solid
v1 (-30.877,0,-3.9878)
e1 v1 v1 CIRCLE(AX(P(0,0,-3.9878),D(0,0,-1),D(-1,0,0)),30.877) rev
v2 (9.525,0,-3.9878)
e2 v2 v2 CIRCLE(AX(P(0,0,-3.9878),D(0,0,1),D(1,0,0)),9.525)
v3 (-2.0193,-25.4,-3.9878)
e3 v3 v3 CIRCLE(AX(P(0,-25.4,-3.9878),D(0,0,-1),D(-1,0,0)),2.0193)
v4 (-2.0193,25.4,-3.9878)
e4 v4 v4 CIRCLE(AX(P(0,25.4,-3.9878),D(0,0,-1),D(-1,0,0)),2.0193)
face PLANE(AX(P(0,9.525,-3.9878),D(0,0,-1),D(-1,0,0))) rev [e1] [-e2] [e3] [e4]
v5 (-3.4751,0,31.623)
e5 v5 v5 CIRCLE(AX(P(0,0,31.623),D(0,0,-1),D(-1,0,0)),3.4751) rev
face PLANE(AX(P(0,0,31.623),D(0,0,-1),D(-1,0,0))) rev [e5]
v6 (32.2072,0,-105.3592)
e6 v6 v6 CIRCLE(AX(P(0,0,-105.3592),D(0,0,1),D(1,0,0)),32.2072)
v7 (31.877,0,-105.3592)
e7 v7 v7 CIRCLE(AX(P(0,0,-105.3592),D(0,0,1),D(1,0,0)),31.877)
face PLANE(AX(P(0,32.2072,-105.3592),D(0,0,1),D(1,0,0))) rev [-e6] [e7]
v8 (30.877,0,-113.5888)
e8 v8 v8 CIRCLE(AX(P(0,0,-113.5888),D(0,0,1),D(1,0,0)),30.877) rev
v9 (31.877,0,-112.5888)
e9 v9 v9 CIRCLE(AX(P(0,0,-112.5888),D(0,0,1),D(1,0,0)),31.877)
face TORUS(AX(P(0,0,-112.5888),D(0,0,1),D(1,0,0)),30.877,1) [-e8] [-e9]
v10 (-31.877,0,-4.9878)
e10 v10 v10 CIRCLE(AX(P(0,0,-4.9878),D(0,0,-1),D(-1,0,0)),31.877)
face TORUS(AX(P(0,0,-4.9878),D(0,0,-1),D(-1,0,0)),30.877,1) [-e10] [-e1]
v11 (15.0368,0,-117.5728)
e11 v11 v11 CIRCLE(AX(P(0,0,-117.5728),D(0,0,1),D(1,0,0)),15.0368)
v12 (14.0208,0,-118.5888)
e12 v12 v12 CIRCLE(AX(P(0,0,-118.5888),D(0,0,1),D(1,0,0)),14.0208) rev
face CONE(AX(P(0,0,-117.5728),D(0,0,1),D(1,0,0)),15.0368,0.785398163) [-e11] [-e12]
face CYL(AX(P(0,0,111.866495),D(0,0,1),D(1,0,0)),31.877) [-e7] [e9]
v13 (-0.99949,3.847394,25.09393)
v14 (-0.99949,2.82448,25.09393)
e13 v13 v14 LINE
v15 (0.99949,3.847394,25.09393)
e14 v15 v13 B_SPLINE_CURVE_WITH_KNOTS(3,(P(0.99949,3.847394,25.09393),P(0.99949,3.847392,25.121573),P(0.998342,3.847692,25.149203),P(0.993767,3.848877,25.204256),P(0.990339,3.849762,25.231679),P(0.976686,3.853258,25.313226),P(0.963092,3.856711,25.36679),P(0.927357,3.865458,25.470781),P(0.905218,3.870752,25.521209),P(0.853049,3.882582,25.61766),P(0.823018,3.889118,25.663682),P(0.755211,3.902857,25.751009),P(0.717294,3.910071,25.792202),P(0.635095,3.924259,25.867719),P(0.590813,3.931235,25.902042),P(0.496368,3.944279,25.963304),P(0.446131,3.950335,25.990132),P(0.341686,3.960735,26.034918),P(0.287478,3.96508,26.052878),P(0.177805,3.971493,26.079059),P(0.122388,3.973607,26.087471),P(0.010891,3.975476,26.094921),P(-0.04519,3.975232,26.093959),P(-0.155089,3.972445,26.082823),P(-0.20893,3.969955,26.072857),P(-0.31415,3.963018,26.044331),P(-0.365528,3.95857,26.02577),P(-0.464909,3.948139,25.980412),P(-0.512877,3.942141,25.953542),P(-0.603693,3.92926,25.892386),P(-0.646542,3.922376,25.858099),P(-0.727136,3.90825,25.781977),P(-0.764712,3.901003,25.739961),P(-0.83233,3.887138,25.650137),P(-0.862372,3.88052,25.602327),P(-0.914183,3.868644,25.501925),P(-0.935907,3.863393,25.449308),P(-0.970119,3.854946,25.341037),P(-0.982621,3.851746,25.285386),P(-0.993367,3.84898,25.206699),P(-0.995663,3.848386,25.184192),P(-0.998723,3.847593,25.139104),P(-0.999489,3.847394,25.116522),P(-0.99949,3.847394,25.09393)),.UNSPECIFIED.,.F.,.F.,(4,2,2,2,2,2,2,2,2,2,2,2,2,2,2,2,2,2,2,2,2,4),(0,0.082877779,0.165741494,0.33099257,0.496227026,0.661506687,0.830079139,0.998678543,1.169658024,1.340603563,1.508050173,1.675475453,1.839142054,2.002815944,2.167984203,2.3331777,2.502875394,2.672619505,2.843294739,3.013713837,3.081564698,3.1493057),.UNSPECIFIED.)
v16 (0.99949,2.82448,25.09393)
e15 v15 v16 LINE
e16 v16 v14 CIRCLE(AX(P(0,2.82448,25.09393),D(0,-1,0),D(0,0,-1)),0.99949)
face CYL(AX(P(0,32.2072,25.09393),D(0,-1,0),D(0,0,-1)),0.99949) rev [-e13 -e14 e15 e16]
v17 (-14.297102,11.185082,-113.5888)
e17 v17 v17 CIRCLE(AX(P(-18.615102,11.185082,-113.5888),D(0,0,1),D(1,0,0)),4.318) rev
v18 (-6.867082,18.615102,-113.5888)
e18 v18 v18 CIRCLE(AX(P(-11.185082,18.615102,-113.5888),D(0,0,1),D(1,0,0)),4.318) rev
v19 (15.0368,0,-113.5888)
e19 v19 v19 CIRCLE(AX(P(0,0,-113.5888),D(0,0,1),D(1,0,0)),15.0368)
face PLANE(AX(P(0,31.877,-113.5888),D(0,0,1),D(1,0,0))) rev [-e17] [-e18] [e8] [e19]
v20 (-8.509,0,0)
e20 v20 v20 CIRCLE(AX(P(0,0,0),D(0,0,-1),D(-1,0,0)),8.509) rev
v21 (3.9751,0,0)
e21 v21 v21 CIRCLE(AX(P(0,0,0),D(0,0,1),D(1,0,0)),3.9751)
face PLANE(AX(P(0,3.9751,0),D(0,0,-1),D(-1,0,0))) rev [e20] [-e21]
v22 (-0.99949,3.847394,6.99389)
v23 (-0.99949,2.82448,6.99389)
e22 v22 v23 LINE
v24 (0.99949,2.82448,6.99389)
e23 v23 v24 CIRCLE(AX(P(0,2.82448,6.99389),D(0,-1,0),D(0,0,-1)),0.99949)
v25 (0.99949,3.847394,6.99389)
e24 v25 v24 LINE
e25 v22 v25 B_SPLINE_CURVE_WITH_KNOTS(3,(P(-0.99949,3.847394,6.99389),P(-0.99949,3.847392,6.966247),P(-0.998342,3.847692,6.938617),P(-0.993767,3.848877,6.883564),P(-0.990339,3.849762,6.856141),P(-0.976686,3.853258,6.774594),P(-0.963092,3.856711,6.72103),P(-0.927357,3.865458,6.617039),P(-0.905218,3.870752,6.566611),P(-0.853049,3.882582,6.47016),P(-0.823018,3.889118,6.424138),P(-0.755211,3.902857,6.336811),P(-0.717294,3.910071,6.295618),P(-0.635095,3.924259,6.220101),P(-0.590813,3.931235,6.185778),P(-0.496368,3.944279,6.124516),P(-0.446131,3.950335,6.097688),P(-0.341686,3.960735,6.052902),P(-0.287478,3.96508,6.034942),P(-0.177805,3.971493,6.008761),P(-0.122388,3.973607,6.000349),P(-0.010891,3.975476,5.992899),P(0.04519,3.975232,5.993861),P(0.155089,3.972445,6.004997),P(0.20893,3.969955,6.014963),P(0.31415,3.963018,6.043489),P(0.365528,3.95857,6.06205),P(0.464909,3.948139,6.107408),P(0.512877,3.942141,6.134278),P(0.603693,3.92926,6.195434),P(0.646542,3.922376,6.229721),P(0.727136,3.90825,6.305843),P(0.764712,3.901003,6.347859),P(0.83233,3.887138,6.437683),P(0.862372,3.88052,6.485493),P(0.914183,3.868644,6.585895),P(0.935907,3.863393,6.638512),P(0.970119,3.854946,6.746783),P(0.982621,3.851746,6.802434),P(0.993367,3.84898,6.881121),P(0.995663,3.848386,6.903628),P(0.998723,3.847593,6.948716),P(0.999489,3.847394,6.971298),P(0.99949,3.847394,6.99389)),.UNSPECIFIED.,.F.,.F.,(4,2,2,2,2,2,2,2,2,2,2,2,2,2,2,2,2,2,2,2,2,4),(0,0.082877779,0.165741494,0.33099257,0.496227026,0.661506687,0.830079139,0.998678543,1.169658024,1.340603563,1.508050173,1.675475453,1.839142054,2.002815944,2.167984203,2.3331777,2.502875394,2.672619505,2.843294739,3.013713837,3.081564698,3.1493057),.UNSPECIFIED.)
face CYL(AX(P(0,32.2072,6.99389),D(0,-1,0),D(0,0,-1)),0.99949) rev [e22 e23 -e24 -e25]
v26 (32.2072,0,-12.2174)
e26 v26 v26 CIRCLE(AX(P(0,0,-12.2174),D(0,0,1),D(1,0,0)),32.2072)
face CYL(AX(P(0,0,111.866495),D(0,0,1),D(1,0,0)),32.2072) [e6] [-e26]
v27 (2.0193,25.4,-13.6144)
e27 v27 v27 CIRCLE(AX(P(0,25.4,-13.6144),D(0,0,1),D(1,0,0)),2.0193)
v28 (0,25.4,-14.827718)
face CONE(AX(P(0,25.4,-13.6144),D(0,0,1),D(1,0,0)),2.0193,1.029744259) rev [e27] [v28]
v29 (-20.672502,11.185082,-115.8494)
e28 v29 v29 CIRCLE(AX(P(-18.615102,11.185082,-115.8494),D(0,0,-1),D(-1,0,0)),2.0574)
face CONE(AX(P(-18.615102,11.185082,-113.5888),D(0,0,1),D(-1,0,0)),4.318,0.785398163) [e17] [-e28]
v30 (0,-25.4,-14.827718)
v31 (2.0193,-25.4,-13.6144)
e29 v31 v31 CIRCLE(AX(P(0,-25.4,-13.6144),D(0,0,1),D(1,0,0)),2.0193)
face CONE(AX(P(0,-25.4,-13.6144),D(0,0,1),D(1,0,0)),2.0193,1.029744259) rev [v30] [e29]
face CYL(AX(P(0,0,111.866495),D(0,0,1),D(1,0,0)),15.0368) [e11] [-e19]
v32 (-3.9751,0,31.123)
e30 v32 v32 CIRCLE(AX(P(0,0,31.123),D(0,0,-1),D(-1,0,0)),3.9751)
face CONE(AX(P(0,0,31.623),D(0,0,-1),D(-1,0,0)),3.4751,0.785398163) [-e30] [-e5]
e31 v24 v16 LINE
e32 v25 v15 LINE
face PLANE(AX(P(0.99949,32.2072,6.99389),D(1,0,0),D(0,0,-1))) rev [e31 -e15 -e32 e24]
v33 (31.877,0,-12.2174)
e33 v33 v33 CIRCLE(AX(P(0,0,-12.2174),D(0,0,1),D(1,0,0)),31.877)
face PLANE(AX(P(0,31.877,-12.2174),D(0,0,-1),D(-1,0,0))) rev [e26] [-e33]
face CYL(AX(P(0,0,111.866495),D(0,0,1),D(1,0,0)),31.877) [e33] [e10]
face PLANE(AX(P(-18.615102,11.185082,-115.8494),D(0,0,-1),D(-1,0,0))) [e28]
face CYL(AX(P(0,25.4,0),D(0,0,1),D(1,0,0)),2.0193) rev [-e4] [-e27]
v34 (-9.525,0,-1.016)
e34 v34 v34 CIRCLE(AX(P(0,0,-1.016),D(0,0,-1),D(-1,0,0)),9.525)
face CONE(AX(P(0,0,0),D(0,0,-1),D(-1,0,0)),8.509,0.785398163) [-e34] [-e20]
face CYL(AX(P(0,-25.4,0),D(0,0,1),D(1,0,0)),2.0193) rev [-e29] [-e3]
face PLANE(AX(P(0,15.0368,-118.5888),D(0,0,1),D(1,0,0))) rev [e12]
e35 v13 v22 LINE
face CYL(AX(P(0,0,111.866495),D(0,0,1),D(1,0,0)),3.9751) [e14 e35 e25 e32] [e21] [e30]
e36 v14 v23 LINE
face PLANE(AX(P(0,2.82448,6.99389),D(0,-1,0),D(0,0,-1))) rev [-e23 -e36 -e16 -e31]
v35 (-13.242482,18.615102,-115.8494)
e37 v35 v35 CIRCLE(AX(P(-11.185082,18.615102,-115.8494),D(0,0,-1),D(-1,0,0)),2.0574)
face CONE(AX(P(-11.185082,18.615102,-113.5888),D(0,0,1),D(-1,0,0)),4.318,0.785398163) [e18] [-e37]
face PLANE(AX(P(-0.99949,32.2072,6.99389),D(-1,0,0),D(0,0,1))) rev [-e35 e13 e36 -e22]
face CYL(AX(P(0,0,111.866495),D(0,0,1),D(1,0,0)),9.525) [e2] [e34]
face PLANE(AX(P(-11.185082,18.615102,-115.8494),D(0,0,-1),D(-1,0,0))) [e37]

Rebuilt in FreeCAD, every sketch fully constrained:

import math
import FreeCAD as App
import Part
import Sketcher

V = App.Vector
Q = App.Units.Quantity


def edges_at(feature, points):
    """Names of the edges that pass closest to the given points."""
    edges = feature.Shape.Edges
    near = lambda p: min(range(len(edges)), key=lambda i: edges[i].distToShape(Part.Vertex(*p))[0])
    return sorted({f"Edge{near(p) + 1}" for p in points})


def faces_at(feature, points):
    """Names of the faces that lie closest to the given points."""
    faces = feature.Shape.Faces
    near = lambda p: min(range(len(faces)), key=lambda i: faces[i].distToShape(Part.Vertex(*p))[0])
    return sorted({f"Face{near(p) + 1}" for p in points})

doc = App.newDocument("Part")
body = doc.addObject("PartDesign::Body", "Body")

# Sketch on YZ plane
sketch1 = body.newObject("Sketcher::SketchObject", "Sketch")
sketch1.AttachmentSupport = (doc.getObject("YZ_Plane"), [""])
sketch1.MapMode = "FlatFace"
sketch1.addGeometry([
    Part.LineSegment(V(3.98, 31.62, 0), V(0, 31.62, 0)),  # 0
    Part.LineSegment(V(0, 31.62, 0), V(0, -118.59, 0)),  # 1
    Part.LineSegment(V(0, -118.59, 0), V(15.04, -118.59, 0)),  # 2
    Part.LineSegment(V(15.04, -118.59, 0), V(15.04, -113.59, 0)),  # 3
    Part.LineSegment(V(15.04, -113.59, 0), V(31.88, -113.59, 0)),  # 4
    Part.LineSegment(V(31.88, -113.59, 0), V(31.88, -105.36, 0)),  # 5
    Part.LineSegment(V(31.88, -105.36, 0), V(32.21, -105.36, 0)),  # 6
    Part.LineSegment(V(32.21, -105.36, 0), V(32.21, -12.22, 0)),  # 7
    Part.LineSegment(V(32.21, -12.22, 0), V(31.88, -12.22, 0)),  # 8
    Part.LineSegment(V(31.88, -12.22, 0), V(31.88, -3.99, 0)),  # 9
    Part.LineSegment(V(31.88, -3.99, 0), V(9.53, -3.99, 0)),  # 10
    Part.LineSegment(V(9.53, -3.99, 0), V(9.53, 0, 0)),  # 11
    Part.LineSegment(V(9.53, 0, 0), V(3.98, 0, 0)),  # 12
    Part.LineSegment(V(3.98, 0, 0), V(3.98, 31.62, 0)),  # 13
], False)
sketch1.addConstraint([
    Sketcher.Constraint("Coincident", 0, 2, 1, 1),
    Sketcher.Constraint("Coincident", 1, 2, 2, 1),
    Sketcher.Constraint("Coincident", 2, 2, 3, 1),
    Sketcher.Constraint("Coincident", 3, 2, 4, 1),
    Sketcher.Constraint("Coincident", 4, 2, 5, 1),
    Sketcher.Constraint("Coincident", 5, 2, 6, 1),
    Sketcher.Constraint("Coincident", 6, 2, 7, 1),
    Sketcher.Constraint("Coincident", 7, 2, 8, 1),
    Sketcher.Constraint("Coincident", 8, 2, 9, 1),
    Sketcher.Constraint("Coincident", 9, 2, 10, 1),
    Sketcher.Constraint("Coincident", 10, 2, 11, 1),
    Sketcher.Constraint("Coincident", 11, 2, 12, 1),
    Sketcher.Constraint("Coincident", 12, 2, 13, 1),
    Sketcher.Constraint("Coincident", 13, 2, 0, 1),
    Sketcher.Constraint("Horizontal", 0),
    Sketcher.Constraint("Vertical", 1),
    Sketcher.Constraint("Horizontal", 2),
    Sketcher.Constraint("Vertical", 3),
    Sketcher.Constraint("Horizontal", 4),
    Sketcher.Constraint("Vertical", 5),
    Sketcher.Constraint("Horizontal", 6),
    Sketcher.Constraint("Vertical", 7),
    Sketcher.Constraint("Horizontal", 8),
    Sketcher.Constraint("Vertical", 9),
    Sketcher.Constraint("Horizontal", 10),
    Sketcher.Constraint("Vertical", 11),
    Sketcher.Constraint("Horizontal", 12),
    Sketcher.Constraint("Vertical", 13),
    Sketcher.Constraint("PointOnObject", 0, 2, -2),
    Sketcher.Constraint("PointOnObject", 11, 2, -1),
    Sketcher.Constraint("Vertical", 5, 2, 8, 2),
    Sketcher.Constraint("Equal", 5, 9),
    Sketcher.Constraint("DistanceX", 10, 2, 10, 1, Q("0.88 in")),
    Sketcher.Constraint("DistanceX", 2, 1, 2, 2, Q("0.592 in")),
    Sketcher.Constraint("DistanceX", 4, 1, 4, 2, Q("0.663 in")),
    Sketcher.Constraint("DistanceX", 6, 1, 6, 2, Q("0.013 in")),
    Sketcher.Constraint("DistanceY", 5, 1, 5, 2, Q("0.324 in")),
    Sketcher.Constraint("DistanceY", 7, 1, 7, 2, Q("3.667 in")),
    Sketcher.Constraint("DistanceY", 11, 1, 11, 2, Q("0.157 in")),
    Sketcher.Constraint("DistanceY", 13, 1, 13, 2, Q("1.245 in")),
    Sketcher.Constraint("DistanceX", 0, 2, 0, 1, Q("0.1565 in")),
    Sketcher.Constraint("DistanceY", 1, 2, 1, 1, 150.2118),
])
revolution = body.newObject("PartDesign::Revolution", "Revolution")
revolution.Profile = sketch1
revolution.ReferenceAxis = (sketch1, ["V_Axis"])
revolution.Angle = 360
doc.recompute()

fillet = body.newObject("PartDesign::Fillet", "Fillet")
fillet.Base = (revolution, edges_at(revolution, [(-31.877, 0, -113.589), (-31.877, 0, -3.988)]))
fillet.Radius = 1
doc.recompute()

chamfer = body.newObject("PartDesign::Chamfer", "Chamfer")
chamfer.Base = (fillet, edges_at(fillet, [(-9.525, 0, 0), (-15.037, 0, -118.589)]))
chamfer.Size = Q("0.04 in")
doc.recompute()

chamfer2 = body.newObject("PartDesign::Chamfer", "Chamfer001")
chamfer2.Base = (chamfer, edges_at(chamfer, [(-3.975, 0, 31.623)]))
chamfer2.Size = 0.5

# Sketch on XY plane
sketch2 = body.newObject("Sketcher::SketchObject", "Sketch001")
sketch2.AttachmentSupport = (doc.getObject("XY_Plane"), [""])
sketch2.MapMode = "FlatFace"
sketch2.addGeometry([
    Part.Circle(V(0, 25.4, 0), V(0, 0, 1), 2),
    Part.Circle(V(0, -25.4, 0), V(0, 0, 1), 2),
], False)
sketch2.addConstraint([
    Sketcher.Constraint("Equal", 0, 1),
    Sketcher.Constraint("Symmetric", 0, 3, 1, 3, -1, 1),
    Sketcher.Constraint("PointOnObject", 0, 3, -2),
    Sketcher.Constraint("Diameter", 0, Q("0.159 in")),
    Sketcher.Constraint("DistanceY", -1, 1, 0, 3, Q("1 in")),
])
doc.recompute()
hole = body.newObject("PartDesign::Hole", "Hole")
hole.Profile = sketch2
hole.ThreadType = "None"
hole.Diameter = Q("0.159 in")
hole.DepthType = "Dimension"
hole.Depth = Q("0.536 in")
hole.DrillPoint = "Angled"
hole.DrillPointAngle = 118

# Sketch on XZ plane
sketch3 = body.newObject("Sketcher::SketchObject", "Sketch002")
sketch3.AttachmentSupport = (doc.getObject("XZ_Plane"), [""])
sketch3.MapMode = "FlatFace"
sketch3.AttachmentOffset = App.Placement(V(0, 0, -0.1112 * 25.4), App.Rotation())
sketch3.addGeometry([
    Part.LineSegment(V(-1, 25.1, 0), V(-1, 7, 0)),
    Part.ArcOfCircle(Part.Circle(V(0, 7, 0), V(0, 0, 1), 1), math.radians(180), math.radians(360)),
    Part.LineSegment(V(1, 7, 0), V(1, 25.1, 0)),
    Part.ArcOfCircle(Part.Circle(V(0, 25.1, 0), V(0, 0, 1), 1), math.radians(0), math.radians(180)),
], False)
sketch3.addConstraint([
    Sketcher.Constraint("Tangent", 0, 2, 1, 1),
    Sketcher.Constraint("Tangent", 1, 2, 2, 1),
    Sketcher.Constraint("Tangent", 2, 2, 3, 1),
    Sketcher.Constraint("Tangent", 3, 2, 0, 1),
    Sketcher.Constraint("Vertical", 0),
    Sketcher.Constraint("Vertical", 2),
    Sketcher.Constraint("PointOnObject", 1, 3, -2),
    Sketcher.Constraint("DistanceY", 0, 2, 0, 1, Q("0.7126 in")),
    Sketcher.Constraint("Radius", 1, 0.99949),
    Sketcher.Constraint("DistanceY", -1, 1, 1, 3, 6.99389),
])
pocket1 = body.newObject("PartDesign::Pocket", "Pocket")
pocket1.Profile = sketch3
pocket1.Type = "ThroughAll"
body2 = doc.addObject("PartDesign::Body", "Body001")

# Sketch on XY plane
sketch4 = body2.newObject("Sketcher::SketchObject", "Sketch003")
sketch4.AttachmentSupport = (doc.getObject("XY_Plane001"), [""])
sketch4.MapMode = "FlatFace"
sketch4.AttachmentOffset = App.Placement(V(0, 0, -4.472 * 25.4), App.Rotation())
sketch4.addGeometry(Part.Circle(V(-11.2, 18.6, 0), V(0, 0, 1), 4.3), False)
sketch4.addConstraint([
    Sketcher.Constraint("Diameter", 0, Q("0.34 in")),
    Sketcher.Constraint("DistanceX", 0, 3, -1, 1, 11.185082),
    Sketcher.Constraint("DistanceY", -1, 1, 0, 3, 18.615102),
])
pad1 = body2.newObject("PartDesign::Pad", "Pad")
pad1.Profile = sketch4
pad1.Length = Q("0.089 in")
pad1.Reversed = True
doc.recompute()

datumplane = body2.newObject("PartDesign::Plane", "DatumPlane")
datumplane.AttachmentSupport = (doc.getObject("XY_Plane001"), [""])
datumplane.MapMode = "FlatFace"
datumplane.AttachmentOffset = App.Placement(V(0, 0, -4.472 * 25.4), App.Rotation())
draft = body2.newObject("PartDesign::Draft", "Draft")
draft.Base = (pad1, faces_at(pad1, [(-6.867, 18.615, -114.719)]))
draft.NeutralPlane = (datumplane, [""])
draft.Angle = 45
draft.Reversed = True
doc.recompute()

boolean = body.newObject("PartDesign::Boolean", "Boolean")
boolean.Type = "Fuse"
boolean.addObjects([body2])
body3 = doc.addObject("PartDesign::Body", "Body002")

# Sketch on XY plane
sketch5 = body3.newObject("Sketcher::SketchObject", "Sketch004")
sketch5.AttachmentSupport = (doc.getObject("XY_Plane002"), [""])
sketch5.MapMode = "FlatFace"
sketch5.AttachmentOffset = App.Placement(V(0, 0, -4.472 * 25.4), App.Rotation())
sketch5.addGeometry(Part.Circle(V(-18.6, 11.2, 0), V(0, 0, 1), 4.3), False)
sketch5.addConstraint([
    Sketcher.Constraint("Diameter", 0, Q("0.34 in")),
    Sketcher.Constraint("DistanceY", -1, 1, 0, 3, 11.185082),
    Sketcher.Constraint("DistanceX", 0, 3, -1, 1, 18.615102),
])
pad2 = body3.newObject("PartDesign::Pad", "Pad001")
pad2.Profile = sketch5
pad2.Length = Q("0.089 in")
pad2.Reversed = True
doc.recompute()

datumplane2 = body3.newObject("PartDesign::Plane", "DatumPlane001")
datumplane2.AttachmentSupport = (doc.getObject("XY_Plane002"), [""])
datumplane2.MapMode = "FlatFace"
datumplane2.AttachmentOffset = App.Placement(V(0, 0, -4.472 * 25.4), App.Rotation())
draft2 = body3.newObject("PartDesign::Draft", "Draft001")
draft2.Base = (pad2, faces_at(pad2, [(-14.297, 11.185, -114.719)]))
draft2.NeutralPlane = (datumplane2, [""])
draft2.Angle = 45
draft2.Reversed = True
doc.recompute()

boolean2 = body.newObject("PartDesign::Boolean", "Boolean001")
boolean2.Type = "Fuse"
boolean2.addObjects([body3])

doc.recompute()
